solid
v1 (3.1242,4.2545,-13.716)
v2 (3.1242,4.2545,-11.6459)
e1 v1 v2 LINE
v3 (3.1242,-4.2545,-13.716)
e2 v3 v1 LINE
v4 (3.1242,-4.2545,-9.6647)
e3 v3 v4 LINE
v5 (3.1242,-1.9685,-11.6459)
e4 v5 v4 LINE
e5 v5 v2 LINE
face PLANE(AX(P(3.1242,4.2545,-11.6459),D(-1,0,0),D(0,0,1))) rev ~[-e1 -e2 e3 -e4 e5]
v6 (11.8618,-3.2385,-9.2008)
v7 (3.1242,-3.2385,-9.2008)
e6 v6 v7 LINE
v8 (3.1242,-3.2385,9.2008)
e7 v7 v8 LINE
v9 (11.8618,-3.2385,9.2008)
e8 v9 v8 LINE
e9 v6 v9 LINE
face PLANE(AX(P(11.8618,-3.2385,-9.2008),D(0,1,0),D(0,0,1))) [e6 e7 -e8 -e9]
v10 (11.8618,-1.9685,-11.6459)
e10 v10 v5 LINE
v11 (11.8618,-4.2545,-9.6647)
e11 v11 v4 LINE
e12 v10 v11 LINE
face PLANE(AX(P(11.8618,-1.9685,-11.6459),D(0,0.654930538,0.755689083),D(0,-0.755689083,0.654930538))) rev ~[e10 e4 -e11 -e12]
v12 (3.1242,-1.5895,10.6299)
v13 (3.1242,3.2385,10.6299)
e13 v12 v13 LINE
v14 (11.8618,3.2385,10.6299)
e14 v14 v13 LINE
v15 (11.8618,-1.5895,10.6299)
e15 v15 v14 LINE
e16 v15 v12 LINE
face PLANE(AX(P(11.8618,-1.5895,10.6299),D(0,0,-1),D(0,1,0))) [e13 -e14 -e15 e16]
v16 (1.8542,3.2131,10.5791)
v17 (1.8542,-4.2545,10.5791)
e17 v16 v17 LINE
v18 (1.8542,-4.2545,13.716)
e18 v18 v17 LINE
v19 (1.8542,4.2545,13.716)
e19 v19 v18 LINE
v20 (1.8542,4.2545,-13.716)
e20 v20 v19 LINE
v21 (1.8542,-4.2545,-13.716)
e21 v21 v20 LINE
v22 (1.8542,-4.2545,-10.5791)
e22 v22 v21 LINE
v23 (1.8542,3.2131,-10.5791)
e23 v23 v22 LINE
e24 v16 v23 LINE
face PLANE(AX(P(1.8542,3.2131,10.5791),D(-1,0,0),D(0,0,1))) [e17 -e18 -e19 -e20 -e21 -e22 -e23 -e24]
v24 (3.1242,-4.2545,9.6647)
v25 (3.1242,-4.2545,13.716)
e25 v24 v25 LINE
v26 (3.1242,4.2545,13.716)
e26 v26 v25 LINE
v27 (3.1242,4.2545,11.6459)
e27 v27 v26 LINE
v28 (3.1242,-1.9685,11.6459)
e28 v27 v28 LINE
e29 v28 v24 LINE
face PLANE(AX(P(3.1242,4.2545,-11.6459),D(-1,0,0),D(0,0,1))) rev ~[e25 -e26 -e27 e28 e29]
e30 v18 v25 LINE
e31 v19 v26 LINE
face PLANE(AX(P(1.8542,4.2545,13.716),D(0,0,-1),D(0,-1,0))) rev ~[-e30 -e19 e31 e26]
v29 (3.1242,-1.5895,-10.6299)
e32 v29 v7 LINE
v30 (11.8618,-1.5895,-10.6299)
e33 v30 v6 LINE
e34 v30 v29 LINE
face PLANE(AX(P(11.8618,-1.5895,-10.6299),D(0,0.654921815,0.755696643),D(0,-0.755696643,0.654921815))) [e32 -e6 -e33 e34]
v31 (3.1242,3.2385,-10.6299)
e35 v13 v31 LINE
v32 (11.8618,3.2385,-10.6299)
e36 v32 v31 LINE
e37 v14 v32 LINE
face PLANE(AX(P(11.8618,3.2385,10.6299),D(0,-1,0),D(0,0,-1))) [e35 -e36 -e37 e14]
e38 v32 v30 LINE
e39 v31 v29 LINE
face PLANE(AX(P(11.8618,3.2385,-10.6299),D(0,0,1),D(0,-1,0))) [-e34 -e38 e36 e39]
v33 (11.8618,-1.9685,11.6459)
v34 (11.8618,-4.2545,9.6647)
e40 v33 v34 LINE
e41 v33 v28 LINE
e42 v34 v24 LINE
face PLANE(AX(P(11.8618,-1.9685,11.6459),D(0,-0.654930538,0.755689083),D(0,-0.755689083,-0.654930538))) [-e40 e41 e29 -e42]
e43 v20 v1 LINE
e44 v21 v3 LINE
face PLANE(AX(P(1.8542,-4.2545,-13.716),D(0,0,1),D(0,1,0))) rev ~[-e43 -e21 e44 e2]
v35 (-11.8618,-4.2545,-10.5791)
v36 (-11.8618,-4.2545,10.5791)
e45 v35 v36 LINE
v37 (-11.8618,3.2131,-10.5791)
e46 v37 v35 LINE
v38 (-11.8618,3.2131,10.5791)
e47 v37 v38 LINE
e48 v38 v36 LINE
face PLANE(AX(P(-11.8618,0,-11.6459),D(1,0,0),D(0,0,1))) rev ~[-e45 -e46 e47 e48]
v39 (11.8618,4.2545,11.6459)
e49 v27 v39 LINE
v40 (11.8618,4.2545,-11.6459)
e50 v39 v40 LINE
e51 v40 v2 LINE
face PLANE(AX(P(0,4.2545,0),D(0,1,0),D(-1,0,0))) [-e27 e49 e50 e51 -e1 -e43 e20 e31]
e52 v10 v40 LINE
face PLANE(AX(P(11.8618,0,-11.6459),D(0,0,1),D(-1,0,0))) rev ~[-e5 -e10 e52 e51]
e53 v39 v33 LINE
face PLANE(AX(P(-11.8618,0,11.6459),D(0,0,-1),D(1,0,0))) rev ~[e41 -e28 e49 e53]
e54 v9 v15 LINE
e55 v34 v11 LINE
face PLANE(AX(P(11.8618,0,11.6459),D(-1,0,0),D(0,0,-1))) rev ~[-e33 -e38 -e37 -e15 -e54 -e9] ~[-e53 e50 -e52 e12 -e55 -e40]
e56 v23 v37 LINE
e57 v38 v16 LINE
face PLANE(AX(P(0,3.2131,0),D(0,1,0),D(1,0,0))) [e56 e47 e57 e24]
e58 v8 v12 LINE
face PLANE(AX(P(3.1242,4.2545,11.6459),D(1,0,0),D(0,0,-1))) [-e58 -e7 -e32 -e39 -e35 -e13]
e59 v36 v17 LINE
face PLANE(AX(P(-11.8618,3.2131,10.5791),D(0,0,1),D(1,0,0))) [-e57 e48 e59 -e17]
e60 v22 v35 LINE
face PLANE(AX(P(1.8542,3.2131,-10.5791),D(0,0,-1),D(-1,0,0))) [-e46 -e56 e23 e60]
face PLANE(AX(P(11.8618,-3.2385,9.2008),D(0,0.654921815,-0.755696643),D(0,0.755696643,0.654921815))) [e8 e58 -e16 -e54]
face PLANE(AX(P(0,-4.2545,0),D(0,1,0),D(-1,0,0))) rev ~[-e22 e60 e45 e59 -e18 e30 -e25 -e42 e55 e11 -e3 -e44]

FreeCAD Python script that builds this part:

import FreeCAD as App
import Part
import Sketcher

V = App.Vector
Q = App.Units.Quantity


def add_polygon(sketch, points):
    """Adds a closed chain of lines whose ends are joined by coincident constraints."""
    first, n = sketch.GeometryCount, len(points)
    for a, b in zip(points, points[1:] + points[:1]):
        sketch.addGeometry(Part.LineSegment(App.Vector(*a, 0), App.Vector(*b, 0)), False)
    for i in range(n):
        sketch.addConstraint(Sketcher.Constraint("Coincident", first + i, 2, first + (i + 1) % n, 1))

doc = App.newDocument("Part")
body = doc.addObject("PartDesign::Body", "Body")

# Sketch on XZ plane
sketch1 = body.newObject("Sketcher::SketchObject", "Sketch")
sketch1.AttachmentSupport = (doc.getObject("XZ_Plane"), [""])
sketch1.MapMode = "FlatFace"
add_polygon(sketch1, [(12, 12), (12, -12), (-12, -12), (-12, 12)])  # lines 0-3
sketch1.addConstraint(Sketcher.Constraint("Vertical", 0))
sketch1.addConstraint(Sketcher.Constraint("Horizontal", 1))
sketch1.addConstraint(Sketcher.Constraint("Vertical", 2))
sketch1.addConstraint(Sketcher.Constraint("Horizontal", 3))
sketch1.addConstraint(Sketcher.Constraint("Symmetric", 0, 2, 2, 2, -1, 1))
sketch1.addConstraint(Sketcher.Constraint("DistanceX", 1, 2, 1, 1, Q("0.934 in")))
sketch1.addConstraint(Sketcher.Constraint("DistanceY", 0, 2, 0, 1, Q("0.917 in")))
pad1 = body.newObject("PartDesign::Pad", "Pad")
pad1.Profile = sketch1
pad1.Length = Q("0.335 in")
pad1.Midplane = True

# Sketch on XZ plane
sketch2 = body.newObject("Sketcher::SketchObject", "Sketch001")
sketch2.AttachmentSupport = (doc.getObject("XZ_Plane"), [""])
sketch2.MapMode = "FlatFace"
sketch2.AttachmentOffset = App.Placement(V(0, 0, -0.1675 * 25.4), App.Rotation())
add_polygon(sketch2, [(2, -12), (-12, -12), (-12, 12), (2, 12)])  # lines 0-3
sketch2.addConstraint(Sketcher.Constraint("Horizontal", 0))
sketch2.addConstraint(Sketcher.Constraint("Vertical", 1))
sketch2.addConstraint(Sketcher.Constraint("Horizontal", 2))
sketch2.addConstraint(Sketcher.Constraint("Vertical", 3))
sketch2.addConstraint(Sketcher.Constraint("DistanceX", 0, 2, 0, 1, Q("0.54 in")))
sketch2.addConstraint(Sketcher.Constraint("DistanceY", 1, 1, 1, 2, Q("0.917 in")))
sketch2.addConstraint(Sketcher.Constraint("DistanceX", 0, 2, -1, 1, Q("0.467 in")))
sketch2.addConstraint(Sketcher.Constraint("DistanceY", 0, 2, -1, 1, Q("0.4585 in")))
pocket1 = body.newObject("PartDesign::Pocket", "Pocket")
pocket1.Profile = sketch2
pocket1.Length = Q("0.041 in")
pocket1.Reversed = True

# Sketch on XZ plane
sketch3 = body.newObject("Sketcher::SketchObject", "Sketch002")
sketch3.AttachmentSupport = (doc.getObject("XZ_Plane"), [""])
sketch3.MapMode = "FlatFace"
sketch3.AttachmentOffset = App.Placement(V(0, 0, -0.1265 * 25.4), App.Rotation())
add_polygon(sketch3, [(-11.9, 10.6), (-11.9, 11.6), (1.9, 11.6), (1.9, 10.6)])  # lines 0-3
add_polygon(sketch3, [(-11.9, -11.6), (-11.9, -10.6), (1.9, -10.6), (1.9, -11.6)])  # lines 4-7
sketch3.addConstraint(Sketcher.Constraint("Vertical", 0))
sketch3.addConstraint(Sketcher.Constraint("Horizontal", 1))
sketch3.addConstraint(Sketcher.Constraint("Vertical", 2))
sketch3.addConstraint(Sketcher.Constraint("Horizontal", 3))
sketch3.addConstraint(Sketcher.Constraint("Vertical", 4))
sketch3.addConstraint(Sketcher.Constraint("Horizontal", 5))
sketch3.addConstraint(Sketcher.Constraint("Vertical", 6))
sketch3.addConstraint(Sketcher.Constraint("Horizontal", 7))
sketch3.addConstraint(Sketcher.Constraint("Symmetric", 3, 2, 4, 2, -1))
sketch3.addConstraint(Sketcher.Constraint("Symmetric", 1, 2, 6, 2, -1))
sketch3.addConstraint(Sketcher.Constraint("DistanceY", 0, 1, 0, 2, Q("0.042 in")))
sketch3.addConstraint(Sketcher.Constraint("DistanceY", 4, 2, 3, 2, Q("0.833 in")))
sketch3.addConstraint(Sketcher.Constraint("DistanceX", 1, 1, 1, 2, Q("0.54 in")))
sketch3.addConstraint(Sketcher.Constraint("DistanceX", 0, 2, -1, 1, Q("0.467 in")))
pocket2 = body.newObject("PartDesign::Pocket", "Pocket001")
pocket2.Profile = sketch3
pocket2.Length = Q("0.294 in")
pocket2.Reversed = True

# Sketch on YZ plane
sketch4 = body.newObject("Sketcher::SketchObject", "Sketch003")
sketch4.AttachmentSupport = (doc.getObject("YZ_Plane"), [""])
sketch4.MapMode = "FlatFace"
sketch4.AttachmentOffset = App.Placement(V(0, 0, 0.073 * 25.4), App.Rotation())
add_polygon(sketch4, [(4.3, -11.6), (4.3, -13.7), (-4.3, -13.7), (-4.3, -11.6)])  # lines 0-3
add_polygon(sketch4, [(4.3, 13.7), (4.3, 11.6), (-4.3, 11.6), (-4.3, 13.7)])  # lines 4-7
sketch4.addConstraint(Sketcher.Constraint("Vertical", 0))
sketch4.addConstraint(Sketcher.Constraint("Horizontal", 1))
sketch4.addConstraint(Sketcher.Constraint("Vertical", 2))
sketch4.addConstraint(Sketcher.Constraint("Horizontal", 3))
sketch4.addConstraint(Sketcher.Constraint("Vertical", 4))
sketch4.addConstraint(Sketcher.Constraint("Horizontal", 5))
sketch4.addConstraint(Sketcher.Constraint("Vertical", 6))
sketch4.addConstraint(Sketcher.Constraint("Horizontal", 7))
sketch4.addConstraint(Sketcher.Constraint("Symmetric", 2, 2, 4, 2, -1, 1))
sketch4.addConstraint(Sketcher.Constraint("Symmetric", 0, 2, 6, 2, -1, 1))
sketch4.addConstraint(Sketcher.Constraint("Vertical", 3, 2, 4, 2))
sketch4.addConstraint(Sketcher.Constraint("DistanceY", 1, 2, 6, 2, Q("1.08 in")))
sketch4.addConstraint(Sketcher.Constraint("DistanceY", 0, 2, 0, 1, Q("0.0815 in")))
sketch4.addConstraint(Sketcher.Constraint("DistanceX", 1, 2, 1, 1, Q("0.335 in")))
pad2 = body.newObject("PartDesign::Pad", "Pad001")
pad2.Profile = sketch4
pad2.Length = Q("0.05 in")

# Sketch on YZ plane
sketch5 = body.newObject("Sketcher::SketchObject", "Sketch004")
sketch5.AttachmentSupport = (doc.getObject("YZ_Plane"), [""])
sketch5.MapMode = "FlatFace"
sketch5.AttachmentOffset = App.Placement(V(0, 0, 0.467 * 25.4), App.Rotation())
add_polygon(sketch5, [(-4.3, 9.7), (-2, 11.6), (-4.3, 11.6)])  # lines 0-2
add_polygon(sketch5, [(-2, -11.6), (-4.3, -9.7), (-4.3, -11.6)])  # lines 3-5
sketch5.addConstraint(Sketcher.Constraint("Horizontal", 1))
sketch5.addConstraint(Sketcher.Constraint("Vertical", 2))
sketch5.addConstraint(Sketcher.Constraint("Vertical", 4))
sketch5.addConstraint(Sketcher.Constraint("Horizontal", 5))
sketch5.addConstraint(Sketcher.Constraint("Symmetric", 2, 2, 3, 2, -1))
sketch5.addConstraint(Sketcher.Constraint("Symmetric", 0, 2, 5, 2, -1))
sketch5.addConstraint(Sketcher.Constraint("DistanceY", 3, 2, 2, 2, Q("0.761 in")))
sketch5.addConstraint(Sketcher.Constraint("DistanceX", 1, 2, 1, 1, Q("0.09 in")))
sketch5.addConstraint(Sketcher.Constraint("DistanceY", 2, 2, 2, 1, Q("0.078 in")))
sketch5.addConstraint(Sketcher.Constraint("DistanceX", 0, 2, -1, 1, Q("0.0775 in")))
pocket3 = body.newObject("PartDesign::Pocket", "Pocket002")
pocket3.Profile = sketch5
pocket3.Length = Q("0.344 in")

# Sketch on YZ plane
sketch6 = body.newObject("Sketcher::SketchObject", "Sketch005")
sketch6.AttachmentSupport = (doc.getObject("YZ_Plane"), [""])
sketch6.MapMode = "FlatFace"
sketch6.AttachmentOffset = App.Placement(V(0, 0, 0.467 * 25.4), App.Rotation())
add_polygon(sketch6, [(-1.6, 10.6), (-3.2, 9.2), (-3.2, -9.2), (-1.6, -10.6), (3.2, -10.6), (3.2, 10.6)])  # lines 0-5
sketch6.addConstraint(Sketcher.Constraint("Vertical", 1))
sketch6.addConstraint(Sketcher.Constraint("Horizontal", 3))
sketch6.addConstraint(Sketcher.Constraint("Vertical", 4))
sketch6.addConstraint(Sketcher.Constraint("Horizontal", 5))
sketch6.addConstraint(Sketcher.Constraint("Symmetric", 2, 2, 5, 2, -1))
sketch6.addConstraint(Sketcher.Constraint("Equal", 0, 2))
sketch6.addConstraint(Sketcher.Constraint("DistanceY", 4, 1, 4, 2, Q("0.837 in")))
sketch6.addConstraint(Sketcher.Constraint("DistanceX", 1, 2, 3, 2, Q("0.255 in")))
sketch6.addConstraint(Sketcher.Constraint("Distance", 0, Q("0.0859 in")))
sketch6.addConstraint(Sketcher.Constraint("DistanceX", 3, 1, 3, 2, 4.828))
sketch6.addConstraint(Sketcher.Constraint("DistanceX", 0, 2, -1, 1, Q("0.1275 in")))
pocket4 = body.newObject("PartDesign::Pocket", "Pocket003")
pocket4.Profile = sketch6
pocket4.Length = Q("0.344 in")

doc.recompute()
